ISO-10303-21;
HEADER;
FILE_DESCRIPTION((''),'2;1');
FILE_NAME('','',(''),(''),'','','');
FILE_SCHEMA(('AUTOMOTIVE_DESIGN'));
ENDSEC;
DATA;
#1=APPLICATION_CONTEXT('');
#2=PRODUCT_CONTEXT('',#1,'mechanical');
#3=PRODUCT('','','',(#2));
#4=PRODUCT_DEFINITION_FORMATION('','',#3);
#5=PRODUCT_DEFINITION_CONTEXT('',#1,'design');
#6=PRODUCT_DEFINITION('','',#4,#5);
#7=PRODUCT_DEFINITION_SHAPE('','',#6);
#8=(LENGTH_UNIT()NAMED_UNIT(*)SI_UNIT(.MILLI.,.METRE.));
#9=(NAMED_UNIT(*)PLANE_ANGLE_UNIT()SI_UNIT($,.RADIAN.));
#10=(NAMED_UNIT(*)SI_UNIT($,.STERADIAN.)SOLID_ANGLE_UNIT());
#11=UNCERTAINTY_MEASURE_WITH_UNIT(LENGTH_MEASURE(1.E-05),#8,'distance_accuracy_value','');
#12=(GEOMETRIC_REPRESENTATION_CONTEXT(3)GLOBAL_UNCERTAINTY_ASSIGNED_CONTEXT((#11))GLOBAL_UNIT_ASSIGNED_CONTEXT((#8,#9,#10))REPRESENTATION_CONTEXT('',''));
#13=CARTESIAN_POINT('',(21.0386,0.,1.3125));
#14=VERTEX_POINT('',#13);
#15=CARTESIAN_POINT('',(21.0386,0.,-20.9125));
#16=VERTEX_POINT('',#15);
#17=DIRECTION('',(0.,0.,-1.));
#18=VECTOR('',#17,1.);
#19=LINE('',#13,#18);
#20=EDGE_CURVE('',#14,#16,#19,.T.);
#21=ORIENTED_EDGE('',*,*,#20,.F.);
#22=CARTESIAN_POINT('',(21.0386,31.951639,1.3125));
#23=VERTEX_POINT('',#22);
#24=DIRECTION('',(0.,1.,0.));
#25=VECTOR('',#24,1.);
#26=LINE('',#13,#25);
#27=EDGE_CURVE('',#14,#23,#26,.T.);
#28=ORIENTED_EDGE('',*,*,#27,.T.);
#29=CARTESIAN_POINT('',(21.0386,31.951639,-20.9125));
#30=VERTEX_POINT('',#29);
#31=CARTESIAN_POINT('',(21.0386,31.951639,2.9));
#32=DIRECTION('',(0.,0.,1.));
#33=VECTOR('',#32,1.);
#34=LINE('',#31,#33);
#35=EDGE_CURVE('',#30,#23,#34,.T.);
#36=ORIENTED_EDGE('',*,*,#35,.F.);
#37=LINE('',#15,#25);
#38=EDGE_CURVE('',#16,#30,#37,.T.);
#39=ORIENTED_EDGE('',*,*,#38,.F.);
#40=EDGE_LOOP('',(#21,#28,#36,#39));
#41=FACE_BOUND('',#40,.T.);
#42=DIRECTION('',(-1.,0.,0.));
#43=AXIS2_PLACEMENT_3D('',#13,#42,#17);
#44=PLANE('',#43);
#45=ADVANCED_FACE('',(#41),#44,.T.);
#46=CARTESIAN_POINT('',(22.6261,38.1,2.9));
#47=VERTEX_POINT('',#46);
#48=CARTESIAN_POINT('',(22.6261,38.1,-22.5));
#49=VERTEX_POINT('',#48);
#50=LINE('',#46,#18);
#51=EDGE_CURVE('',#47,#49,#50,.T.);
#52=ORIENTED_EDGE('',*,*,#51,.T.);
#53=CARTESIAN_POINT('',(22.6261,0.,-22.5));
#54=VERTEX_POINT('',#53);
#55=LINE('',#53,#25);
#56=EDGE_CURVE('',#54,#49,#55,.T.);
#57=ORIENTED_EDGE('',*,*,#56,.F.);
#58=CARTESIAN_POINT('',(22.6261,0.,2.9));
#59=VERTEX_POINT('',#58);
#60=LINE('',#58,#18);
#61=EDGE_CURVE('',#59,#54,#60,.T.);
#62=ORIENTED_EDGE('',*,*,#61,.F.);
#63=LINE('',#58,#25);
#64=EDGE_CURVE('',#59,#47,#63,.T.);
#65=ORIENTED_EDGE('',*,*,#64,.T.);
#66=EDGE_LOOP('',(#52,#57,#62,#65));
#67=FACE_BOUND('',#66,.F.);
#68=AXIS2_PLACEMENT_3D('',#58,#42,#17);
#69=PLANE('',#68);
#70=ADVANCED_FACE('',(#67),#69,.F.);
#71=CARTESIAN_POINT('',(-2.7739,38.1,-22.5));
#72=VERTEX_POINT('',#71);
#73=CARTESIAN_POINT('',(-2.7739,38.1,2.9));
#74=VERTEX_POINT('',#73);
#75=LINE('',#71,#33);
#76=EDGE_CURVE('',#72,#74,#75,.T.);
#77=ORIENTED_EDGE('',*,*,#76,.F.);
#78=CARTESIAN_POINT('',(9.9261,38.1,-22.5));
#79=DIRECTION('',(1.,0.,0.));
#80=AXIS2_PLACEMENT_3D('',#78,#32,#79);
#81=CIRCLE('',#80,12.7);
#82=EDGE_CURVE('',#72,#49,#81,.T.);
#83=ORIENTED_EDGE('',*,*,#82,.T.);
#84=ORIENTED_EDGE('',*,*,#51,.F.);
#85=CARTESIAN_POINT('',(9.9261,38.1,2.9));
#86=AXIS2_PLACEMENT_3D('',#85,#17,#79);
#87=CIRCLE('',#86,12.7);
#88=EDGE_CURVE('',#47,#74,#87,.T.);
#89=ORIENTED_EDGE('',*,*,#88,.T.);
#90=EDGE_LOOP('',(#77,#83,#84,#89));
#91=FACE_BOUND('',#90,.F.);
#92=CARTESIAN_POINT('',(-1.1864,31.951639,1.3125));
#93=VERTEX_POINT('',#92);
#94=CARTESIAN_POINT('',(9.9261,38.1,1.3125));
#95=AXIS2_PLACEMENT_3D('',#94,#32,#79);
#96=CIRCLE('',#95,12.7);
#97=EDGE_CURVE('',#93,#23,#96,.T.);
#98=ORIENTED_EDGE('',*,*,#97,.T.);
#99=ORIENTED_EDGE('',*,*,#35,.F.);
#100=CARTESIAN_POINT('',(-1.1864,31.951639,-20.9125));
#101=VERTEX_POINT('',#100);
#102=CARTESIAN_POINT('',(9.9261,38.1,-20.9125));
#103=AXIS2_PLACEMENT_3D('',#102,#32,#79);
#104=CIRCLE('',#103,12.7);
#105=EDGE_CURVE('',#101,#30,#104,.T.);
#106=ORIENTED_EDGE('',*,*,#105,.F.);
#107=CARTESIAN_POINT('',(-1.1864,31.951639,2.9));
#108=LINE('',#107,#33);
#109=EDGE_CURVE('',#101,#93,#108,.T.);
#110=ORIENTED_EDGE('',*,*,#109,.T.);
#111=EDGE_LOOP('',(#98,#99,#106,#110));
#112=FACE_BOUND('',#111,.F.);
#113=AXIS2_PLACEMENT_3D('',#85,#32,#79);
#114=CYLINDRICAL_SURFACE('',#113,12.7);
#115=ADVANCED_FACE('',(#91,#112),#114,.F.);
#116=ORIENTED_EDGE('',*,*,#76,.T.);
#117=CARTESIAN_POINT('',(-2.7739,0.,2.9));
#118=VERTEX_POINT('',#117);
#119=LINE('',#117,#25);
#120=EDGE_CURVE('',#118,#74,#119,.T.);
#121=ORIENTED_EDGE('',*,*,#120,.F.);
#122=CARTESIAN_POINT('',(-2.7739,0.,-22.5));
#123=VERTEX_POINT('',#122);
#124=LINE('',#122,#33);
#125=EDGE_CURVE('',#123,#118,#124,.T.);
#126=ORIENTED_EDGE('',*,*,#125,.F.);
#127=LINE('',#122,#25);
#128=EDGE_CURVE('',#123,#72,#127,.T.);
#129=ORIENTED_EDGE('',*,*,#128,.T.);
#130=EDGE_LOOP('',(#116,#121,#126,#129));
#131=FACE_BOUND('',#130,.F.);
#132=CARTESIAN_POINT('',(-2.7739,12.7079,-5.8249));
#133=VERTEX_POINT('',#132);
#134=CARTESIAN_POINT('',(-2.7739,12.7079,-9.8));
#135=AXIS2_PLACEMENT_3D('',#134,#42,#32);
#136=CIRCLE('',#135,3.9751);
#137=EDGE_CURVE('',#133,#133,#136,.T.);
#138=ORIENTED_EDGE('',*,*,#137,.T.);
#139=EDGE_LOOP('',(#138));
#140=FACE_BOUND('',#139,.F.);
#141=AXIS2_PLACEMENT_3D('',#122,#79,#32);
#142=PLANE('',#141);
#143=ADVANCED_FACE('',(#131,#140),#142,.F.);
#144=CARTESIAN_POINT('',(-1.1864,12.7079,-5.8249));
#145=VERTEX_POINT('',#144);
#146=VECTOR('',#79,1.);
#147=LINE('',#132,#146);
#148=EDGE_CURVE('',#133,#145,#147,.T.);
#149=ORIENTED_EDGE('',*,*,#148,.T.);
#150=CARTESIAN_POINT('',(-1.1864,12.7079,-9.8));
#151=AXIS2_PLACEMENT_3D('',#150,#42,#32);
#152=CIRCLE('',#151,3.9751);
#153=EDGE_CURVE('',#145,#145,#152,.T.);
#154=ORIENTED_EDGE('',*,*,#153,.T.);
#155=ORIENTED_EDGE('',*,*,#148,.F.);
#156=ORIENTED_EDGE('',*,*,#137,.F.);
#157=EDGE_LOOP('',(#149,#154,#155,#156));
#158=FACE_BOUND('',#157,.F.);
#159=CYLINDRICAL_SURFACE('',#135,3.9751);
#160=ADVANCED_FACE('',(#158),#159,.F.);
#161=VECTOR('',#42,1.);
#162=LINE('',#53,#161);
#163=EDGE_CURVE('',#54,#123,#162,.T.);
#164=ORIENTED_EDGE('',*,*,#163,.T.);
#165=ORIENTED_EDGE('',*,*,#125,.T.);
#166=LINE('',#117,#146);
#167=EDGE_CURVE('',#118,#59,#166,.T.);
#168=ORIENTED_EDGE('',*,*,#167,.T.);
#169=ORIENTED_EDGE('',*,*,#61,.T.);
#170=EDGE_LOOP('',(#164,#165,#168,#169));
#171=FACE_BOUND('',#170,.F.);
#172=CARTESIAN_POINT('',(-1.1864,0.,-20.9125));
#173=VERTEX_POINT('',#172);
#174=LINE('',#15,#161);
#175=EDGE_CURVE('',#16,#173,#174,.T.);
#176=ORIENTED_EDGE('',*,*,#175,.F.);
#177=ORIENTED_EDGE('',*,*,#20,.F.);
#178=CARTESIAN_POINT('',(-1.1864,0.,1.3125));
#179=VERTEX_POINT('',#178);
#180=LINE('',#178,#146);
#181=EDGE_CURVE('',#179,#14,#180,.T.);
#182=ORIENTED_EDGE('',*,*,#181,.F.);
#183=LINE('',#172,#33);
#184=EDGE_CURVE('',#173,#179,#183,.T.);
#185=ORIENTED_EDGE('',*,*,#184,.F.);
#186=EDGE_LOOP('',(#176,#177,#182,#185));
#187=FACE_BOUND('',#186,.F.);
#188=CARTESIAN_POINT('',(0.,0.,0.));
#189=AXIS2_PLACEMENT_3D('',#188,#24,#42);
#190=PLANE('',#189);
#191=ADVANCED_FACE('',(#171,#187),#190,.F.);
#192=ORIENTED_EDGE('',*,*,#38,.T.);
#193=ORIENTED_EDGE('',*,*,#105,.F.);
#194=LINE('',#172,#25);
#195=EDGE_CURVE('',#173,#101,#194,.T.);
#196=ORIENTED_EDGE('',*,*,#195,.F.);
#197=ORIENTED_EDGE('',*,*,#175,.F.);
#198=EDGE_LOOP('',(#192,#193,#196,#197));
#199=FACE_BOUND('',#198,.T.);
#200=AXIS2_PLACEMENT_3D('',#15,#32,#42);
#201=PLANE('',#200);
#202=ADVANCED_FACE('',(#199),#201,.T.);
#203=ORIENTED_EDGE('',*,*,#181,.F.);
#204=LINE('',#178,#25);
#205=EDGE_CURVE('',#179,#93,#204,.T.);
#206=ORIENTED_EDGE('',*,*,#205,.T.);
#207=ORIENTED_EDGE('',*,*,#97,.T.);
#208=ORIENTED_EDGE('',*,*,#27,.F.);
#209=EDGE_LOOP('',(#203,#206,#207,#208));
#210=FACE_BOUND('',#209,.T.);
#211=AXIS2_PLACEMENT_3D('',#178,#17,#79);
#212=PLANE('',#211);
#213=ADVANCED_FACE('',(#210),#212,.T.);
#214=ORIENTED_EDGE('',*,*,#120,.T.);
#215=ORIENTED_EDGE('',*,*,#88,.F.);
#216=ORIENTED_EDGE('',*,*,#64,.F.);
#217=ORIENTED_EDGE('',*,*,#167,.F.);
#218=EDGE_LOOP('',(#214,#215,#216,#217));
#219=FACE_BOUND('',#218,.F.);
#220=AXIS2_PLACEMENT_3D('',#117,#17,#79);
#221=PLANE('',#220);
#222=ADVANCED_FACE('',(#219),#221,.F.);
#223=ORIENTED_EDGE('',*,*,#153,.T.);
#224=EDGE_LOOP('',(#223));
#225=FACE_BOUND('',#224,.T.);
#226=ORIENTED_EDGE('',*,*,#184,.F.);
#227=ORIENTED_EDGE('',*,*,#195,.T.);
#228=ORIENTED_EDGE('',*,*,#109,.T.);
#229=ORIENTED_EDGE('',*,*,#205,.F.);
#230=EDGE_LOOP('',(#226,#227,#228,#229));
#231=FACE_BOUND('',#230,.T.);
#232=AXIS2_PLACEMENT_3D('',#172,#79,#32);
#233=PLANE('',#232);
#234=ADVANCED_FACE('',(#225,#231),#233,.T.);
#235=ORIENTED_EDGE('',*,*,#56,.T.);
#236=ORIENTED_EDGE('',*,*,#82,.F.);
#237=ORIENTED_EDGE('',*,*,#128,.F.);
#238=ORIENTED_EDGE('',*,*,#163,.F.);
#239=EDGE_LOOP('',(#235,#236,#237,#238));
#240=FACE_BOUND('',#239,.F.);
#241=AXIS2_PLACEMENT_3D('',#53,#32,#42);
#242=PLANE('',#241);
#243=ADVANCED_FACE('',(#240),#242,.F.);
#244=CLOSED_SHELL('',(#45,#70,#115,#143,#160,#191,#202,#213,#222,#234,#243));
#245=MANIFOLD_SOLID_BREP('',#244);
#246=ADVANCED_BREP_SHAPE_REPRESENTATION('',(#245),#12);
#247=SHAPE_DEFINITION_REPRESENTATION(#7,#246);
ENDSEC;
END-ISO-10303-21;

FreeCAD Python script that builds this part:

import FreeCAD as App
import Part
import Sketcher
Q = App.Units.Quantity


def add_polygon(sketch, points):
    """Adds a closed chain of lines whose ends are joined by coincident constraints."""
    first, n = sketch.GeometryCount, len(points)
    for a, b in zip(points, points[1:] + points[:1]):
        sketch.addGeometry(Part.LineSegment(App.Vector(*a, 0), App.Vector(*b, 0)), False)
    for i in range(n):
        sketch.addConstraint(Sketcher.Constraint("Coincident", first + i, 2, first + (i + 1) % n, 1))

doc = App.newDocument("Part")
body = doc.addObject("PartDesign::Body", "Body")

sketch1 = doc.addObject("Sketcher::SketchObject", "Sketch")
body.addObject(sketch1)
sketch1.AttachmentSupport = (doc.XZ_Plane, [""])
sketch1.MapMode = "FlatFace"
add_polygon(sketch1, [(-3, -22), (-3, 3), (23, 3), (23, -22)])
add_polygon(sketch1, [(-1, -21), (21, -21), (21, 1), (-1, 1)])
sketch1.addConstraint([
    Sketcher.Constraint("Vertical", 0),
    Sketcher.Constraint("Horizontal", 1),
    Sketcher.Constraint("Vertical", 2),
    Sketcher.Constraint("Horizontal", 3),
    Sketcher.Constraint("Horizontal", 4),
    Sketcher.Constraint("Vertical", 5),
    Sketcher.Constraint("Horizontal", 6),
    Sketcher.Constraint("Vertical", 7),
    Sketcher.Constraint("Equal", 3, 0),
    Sketcher.Constraint("Equal", 6, 5),
    Sketcher.Constraint("DistanceX", 1, 1, 1, 2, Q("1 in")),
    Sketcher.Constraint("DistanceX", 4, 1, 4, 2, Q("0.875 in")),
    Sketcher.Constraint("DistanceX", 4, 2, 2, 2, Q("0.0625 in")),
    Sketcher.Constraint("DistanceY", 2, 2, 4, 2, Q("0.0625 in")),
    Sketcher.Constraint("DistanceX", 0, 2, -1, 1, Q("0.1092 in")),
    Sketcher.Constraint("DistanceY", -1, 1, 0, 2, 2.9),
])
pad1 = doc.addObject("PartDesign::Pad", "Pad")
body.addObject(pad1)
pad1.Profile = sketch1
pad1.Length = Q("1.5 in")
pad1.Reversed = True

sketch2 = doc.addObject("Sketcher::SketchObject", "Sketch001")
body.addObject(sketch2)
sketch2.AttachmentSupport = (doc.XY_Plane, [""])
sketch2.MapMode = "FlatFace"
sketch2.AttachmentOffset = App.Placement(App.Vector(0, 0, 2.9), App.Rotation())
sketch2.addGeometry(Part.Circle(App.Vector(10, 38, 0), App.Vector(0, 0, 1), 13), False)
sketch2.addConstraint([
    Sketcher.Constraint("Diameter", 0, Q("1 in")),
    Sketcher.Constraint("DistanceY", -1, 1, 0, 3, Q("1.5 in")),
    Sketcher.Constraint("DistanceX", -1, 1, 0, 3, Q("0.3908 in")),
])
pocket1 = doc.addObject("PartDesign::Pocket", "Pocket")
body.addObject(pocket1)
pocket1.Profile = sketch2
pocket1.Length = Q("1 in")

sketch3 = doc.addObject("Sketcher::SketchObject", "Sketch002")
body.addObject(sketch3)
sketch3.AttachmentSupport = (doc.YZ_Plane, [""])
sketch3.MapMode = "FlatFace"
sketch3.AttachmentOffset = App.Placement(App.Vector(0, 0, -0.1092087 * 25.4), App.Rotation())
sketch3.addGeometry(Part.Circle(App.Vector(12.7, -9.8, 0), App.Vector(0, 0, 1), 4), False)
sketch3.addConstraint([
    Sketcher.Constraint("Diameter", 0, Q("0.313 in")),
    Sketcher.Constraint("DistanceX", -1, 1, 0, 3, Q("0.5003 in")),
    Sketcher.Constraint("DistanceY", 0, 3, -1, 1, 9.8),
])
pocket2 = doc.addObject("PartDesign::Pocket", "Pocket001")
body.addObject(pocket2)
pocket2.Profile = sketch3
pocket2.Length = Q("0.5 in")
pocket2.Reversed = True

doc.recompute()
